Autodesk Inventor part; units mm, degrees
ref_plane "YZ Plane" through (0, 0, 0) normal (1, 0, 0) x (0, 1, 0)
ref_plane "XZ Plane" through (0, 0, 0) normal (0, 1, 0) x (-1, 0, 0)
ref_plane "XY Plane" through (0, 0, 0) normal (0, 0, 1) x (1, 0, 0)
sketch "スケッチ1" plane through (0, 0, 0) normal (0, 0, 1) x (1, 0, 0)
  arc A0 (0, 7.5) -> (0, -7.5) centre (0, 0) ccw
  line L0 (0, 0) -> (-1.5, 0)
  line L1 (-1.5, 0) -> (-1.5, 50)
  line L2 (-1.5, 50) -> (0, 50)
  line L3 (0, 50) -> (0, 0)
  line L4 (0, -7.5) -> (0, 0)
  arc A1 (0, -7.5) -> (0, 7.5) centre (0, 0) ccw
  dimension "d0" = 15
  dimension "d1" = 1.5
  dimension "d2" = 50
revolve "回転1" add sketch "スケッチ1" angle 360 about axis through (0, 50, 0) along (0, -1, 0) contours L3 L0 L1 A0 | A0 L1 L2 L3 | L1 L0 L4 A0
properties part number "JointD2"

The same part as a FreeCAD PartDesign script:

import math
import FreeCAD as App
import Part
import Sketcher

doc = App.newDocument("Part")
body = doc.addObject("PartDesign::Body", "Body")

# Sketch on XY plane
sketch1 = body.newObject("Sketcher::SketchObject", "Sketch")
sketch1.AttachmentSupport = (doc.getObject("XY_Plane"), [""])
sketch1.MapMode = "FlatFace"
sketch1.addGeometry([
    Part.LineSegment(App.Vector(0, 50, 0), App.Vector(-1.5, 50, 0)),
    Part.LineSegment(App.Vector(-1.5, 50, 0), App.Vector(-1.5, 7.3, 0)),
    Part.ArcOfCircle(Part.Circle(App.Vector(0, 0, 0), App.Vector(0, 0, 1), 7.5), math.radians(102), math.radians(270)),
    Part.LineSegment(App.Vector(0, -7.5, 0), App.Vector(0, 50, 0)),
], False)
sketch1.addConstraint([
    Sketcher.Constraint("Coincident", 0, 2, 1, 1),
    Sketcher.Constraint("Coincident", 1, 2, 2, 1),
    Sketcher.Constraint("Coincident", 2, 2, 3, 1),
    Sketcher.Constraint("Coincident", 3, 2, 0, 1),
    Sketcher.Constraint("Horizontal", 0),
    Sketcher.Constraint("Vertical", 1),
    Sketcher.Constraint("Vertical", 3),
    Sketcher.Constraint("Coincident", 2, 3, -1, 1),
    Sketcher.Constraint("PointOnObject", 2, 2, -2),
    Sketcher.Constraint("Radius", 2, 7.5),
    Sketcher.Constraint("DistanceX", 0, 2, 0, 1, 1.5),
    Sketcher.Constraint("DistanceY", -1, 1, 0, 2, 50.0),
])
revolution = body.newObject("PartDesign::Revolution", "Revolution")
revolution.Profile = sketch1
revolution.ReferenceAxis = (sketch1, ["V_Axis"])
revolution.Angle = 360

doc.recompute()
